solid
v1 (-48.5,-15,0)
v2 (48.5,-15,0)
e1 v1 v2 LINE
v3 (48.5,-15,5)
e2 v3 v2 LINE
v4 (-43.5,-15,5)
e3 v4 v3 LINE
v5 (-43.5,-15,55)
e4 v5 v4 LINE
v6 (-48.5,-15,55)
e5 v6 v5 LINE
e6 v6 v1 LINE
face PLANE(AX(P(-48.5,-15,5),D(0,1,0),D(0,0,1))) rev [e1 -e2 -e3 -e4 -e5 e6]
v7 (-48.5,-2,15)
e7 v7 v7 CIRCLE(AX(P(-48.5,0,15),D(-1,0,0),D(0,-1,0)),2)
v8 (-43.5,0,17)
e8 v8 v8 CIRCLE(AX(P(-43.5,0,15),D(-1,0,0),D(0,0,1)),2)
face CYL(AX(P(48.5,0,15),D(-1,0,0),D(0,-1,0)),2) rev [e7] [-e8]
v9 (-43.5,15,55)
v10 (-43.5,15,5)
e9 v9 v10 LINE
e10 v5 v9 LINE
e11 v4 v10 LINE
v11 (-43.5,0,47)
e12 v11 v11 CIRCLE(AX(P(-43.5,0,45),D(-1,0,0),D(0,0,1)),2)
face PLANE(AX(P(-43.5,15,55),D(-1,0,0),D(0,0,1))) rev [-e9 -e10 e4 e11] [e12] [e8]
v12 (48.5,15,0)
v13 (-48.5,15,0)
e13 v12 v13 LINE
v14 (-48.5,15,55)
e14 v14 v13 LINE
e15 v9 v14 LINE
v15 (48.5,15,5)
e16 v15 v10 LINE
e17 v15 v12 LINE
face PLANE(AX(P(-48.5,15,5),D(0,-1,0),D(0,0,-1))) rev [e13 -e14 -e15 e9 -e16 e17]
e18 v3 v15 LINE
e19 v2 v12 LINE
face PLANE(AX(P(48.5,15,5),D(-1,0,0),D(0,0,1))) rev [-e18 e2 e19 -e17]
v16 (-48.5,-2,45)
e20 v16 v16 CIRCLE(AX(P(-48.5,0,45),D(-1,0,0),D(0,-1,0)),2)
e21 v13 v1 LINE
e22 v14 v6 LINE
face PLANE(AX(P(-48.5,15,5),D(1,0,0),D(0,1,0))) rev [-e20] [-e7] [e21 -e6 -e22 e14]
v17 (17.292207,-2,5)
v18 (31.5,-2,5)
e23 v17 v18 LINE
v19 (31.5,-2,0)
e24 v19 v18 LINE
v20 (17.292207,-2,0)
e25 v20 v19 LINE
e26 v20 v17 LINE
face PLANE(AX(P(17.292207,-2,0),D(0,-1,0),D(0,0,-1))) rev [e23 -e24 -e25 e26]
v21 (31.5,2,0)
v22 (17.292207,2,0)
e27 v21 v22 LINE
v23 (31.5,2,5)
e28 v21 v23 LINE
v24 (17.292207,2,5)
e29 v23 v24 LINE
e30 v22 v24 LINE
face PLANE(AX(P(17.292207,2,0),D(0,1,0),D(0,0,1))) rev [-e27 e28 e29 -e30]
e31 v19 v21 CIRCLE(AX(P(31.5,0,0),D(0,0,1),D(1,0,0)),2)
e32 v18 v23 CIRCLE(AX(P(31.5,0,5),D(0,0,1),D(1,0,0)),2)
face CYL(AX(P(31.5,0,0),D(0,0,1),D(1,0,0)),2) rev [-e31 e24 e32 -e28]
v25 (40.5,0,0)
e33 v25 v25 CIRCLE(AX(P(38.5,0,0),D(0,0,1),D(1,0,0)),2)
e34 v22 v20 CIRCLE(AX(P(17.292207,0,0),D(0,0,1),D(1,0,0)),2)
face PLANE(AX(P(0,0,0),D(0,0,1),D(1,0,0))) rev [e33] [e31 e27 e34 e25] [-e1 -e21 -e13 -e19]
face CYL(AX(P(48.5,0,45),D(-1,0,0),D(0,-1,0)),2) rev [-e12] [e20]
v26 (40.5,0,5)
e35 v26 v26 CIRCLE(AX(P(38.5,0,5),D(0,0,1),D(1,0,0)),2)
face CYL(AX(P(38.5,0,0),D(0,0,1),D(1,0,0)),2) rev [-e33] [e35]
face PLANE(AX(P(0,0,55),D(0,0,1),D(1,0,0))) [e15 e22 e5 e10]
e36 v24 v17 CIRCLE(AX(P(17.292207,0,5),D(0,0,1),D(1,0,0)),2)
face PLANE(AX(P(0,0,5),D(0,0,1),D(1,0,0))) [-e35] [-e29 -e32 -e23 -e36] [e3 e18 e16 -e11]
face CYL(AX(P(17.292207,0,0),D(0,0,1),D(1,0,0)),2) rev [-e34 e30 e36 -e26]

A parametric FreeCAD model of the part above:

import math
import FreeCAD as App
import Part
import Sketcher

doc = App.newDocument("Part")
body = doc.addObject("PartDesign::Body", "Body")

sketch1 = doc.addObject("Sketcher::SketchObject", "Sketch")
body.addObject(sketch1)
sketch1.AttachmentSupport = (doc.XY_Plane, [""])
sketch1.MapMode = "FlatFace"
sketch1.addGeometry([
    Part.LineSegment(App.Vector(-48, 15, 0), App.Vector(-48, -15, 0)),
    Part.LineSegment(App.Vector(-48, -15, 0), App.Vector(48, -15, 0)),
    Part.LineSegment(App.Vector(48, -15, 0), App.Vector(48, 15, 0)),
    Part.LineSegment(App.Vector(48, 15, 0), App.Vector(-48, 15, 0)),
], False)
sketch1.addConstraint([
    Sketcher.Constraint("Coincident", 0, 2, 1, 1),
    Sketcher.Constraint("Coincident", 1, 2, 2, 1),
    Sketcher.Constraint("Coincident", 2, 2, 3, 1),
    Sketcher.Constraint("Coincident", 3, 2, 0, 1),
    Sketcher.Constraint("Vertical", 0),
    Sketcher.Constraint("Horizontal", 1),
    Sketcher.Constraint("Vertical", 2),
    Sketcher.Constraint("Horizontal", 3),
    Sketcher.Constraint("Symmetric", 0, 2, 2, 2, -1, 1),
    Sketcher.Constraint("DistanceX", 1, 1, 1, 2, 97.0),
    Sketcher.Constraint("DistanceY", 0, 2, 0, 1, 30.0),
])
pad1 = doc.addObject("PartDesign::Pad", "Pad")
body.addObject(pad1)
pad1.Profile = sketch1
pad1.Length = 5

sketch2 = doc.addObject("Sketcher::SketchObject", "Sketch001")
body.addObject(sketch2)
sketch2.AttachmentSupport = (doc.XY_Plane, [""])
sketch2.MapMode = "FlatFace"
sketch2.AttachmentOffset = App.Placement(App.Vector(0, 0, 5), App.Rotation())
sketch2.addGeometry([
    Part.Circle(App.Vector(38.5, 0, 0), App.Vector(0, 0, 1), 2),
    Part.LineSegment(App.Vector(31.5, 2, 0), App.Vector(17.3, 2, 0)),
    Part.ArcOfCircle(Part.Circle(App.Vector(17.3, 0, 0), App.Vector(0, 0, 1), 2), math.radians(90), math.radians(270)),
    Part.LineSegment(App.Vector(17.3, -2, 0), App.Vector(31.5, -2, 0)),
    Part.ArcOfCircle(Part.Circle(App.Vector(31.5, 0, 0), App.Vector(0, 0, 1), 2), math.radians(-90), math.radians(90)),
], False)
sketch2.addConstraint([
    Sketcher.Constraint("Tangent", 1, 2, 2, 1),
    Sketcher.Constraint("Tangent", 2, 2, 3, 1),
    Sketcher.Constraint("Tangent", 3, 2, 4, 1),
    Sketcher.Constraint("Tangent", 4, 2, 1, 1),
    Sketcher.Constraint("Horizontal", 1),
    Sketcher.Constraint("Horizontal", 3),
    Sketcher.Constraint("Equal", 0, 2),
    Sketcher.Constraint("PointOnObject", 0, 3, -1),
    Sketcher.Constraint("PointOnObject", 2, 3, -1),
    Sketcher.Constraint("Diameter", 0, 4.0),
    Sketcher.Constraint("DistanceX", 4, 3, 0, 3, 7.0),
    Sketcher.Constraint("DistanceX", -1, 1, 0, 3, 38.5),
    Sketcher.Constraint("DistanceX", 1, 2, 1, 1, 14.207793),
])
pocket1 = doc.addObject("PartDesign::Pocket", "Pocket")
body.addObject(pocket1)
pocket1.Profile = sketch2
pocket1.Type = "ThroughAll"

sketch3 = doc.addObject("Sketcher::SketchObject", "Sketch002")
body.addObject(sketch3)
sketch3.AttachmentSupport = (doc.XY_Plane, [""])
sketch3.MapMode = "FlatFace"
sketch3.AttachmentOffset = App.Placement(App.Vector(0, 0, 5), App.Rotation())
sketch3.addGeometry([
    Part.LineSegment(App.Vector(-48, 15, 0), App.Vector(-48, -15, 0)),
    Part.LineSegment(App.Vector(-48, -15, 0), App.Vector(-44, -15, 0)),
    Part.LineSegment(App.Vector(-44, -15, 0), App.Vector(-44, 15, 0)),
    Part.LineSegment(App.Vector(-44, 15, 0), App.Vector(-48, 15, 0)),
], False)
sketch3.addConstraint([
    Sketcher.Constraint("Coincident", 0, 2, 1, 1),
    Sketcher.Constraint("Coincident", 1, 2, 2, 1),
    Sketcher.Constraint("Coincident", 2, 2, 3, 1),
    Sketcher.Constraint("Coincident", 3, 2, 0, 1),
    Sketcher.Constraint("Vertical", 0),
    Sketcher.Constraint("Horizontal", 1),
    Sketcher.Constraint("Vertical", 2),
    Sketcher.Constraint("Horizontal", 3),
    Sketcher.Constraint("DistanceX", 1, 1, 1, 2, 5.0),
    Sketcher.Constraint("DistanceY", 0, 2, 0, 1, 30.0),
    Sketcher.Constraint("DistanceY", 0, 2, -1, 1, 15.0),
    Sketcher.Constraint("DistanceX", 0, 2, -1, 1, 48.5),
])
pad2 = doc.addObject("PartDesign::Pad", "Pad001")
body.addObject(pad2)
pad2.Profile = sketch3
pad2.Length = 50

sketch4 = doc.addObject("Sketcher::SketchObject", "Sketch003")
body.addObject(sketch4)
sketch4.AttachmentSupport = (doc.YZ_Plane, [""])
sketch4.MapMode = "FlatFace"
sketch4.AttachmentOffset = App.Placement(App.Vector(0, 0, -48.5), App.Rotation())
sketch4.addGeometry([
    Part.Circle(App.Vector(0, 15, 0), App.Vector(0, 0, 1), 2),
    Part.Circle(App.Vector(0, 45, 0), App.Vector(0, 0, 1), 2),
], False)
sketch4.addConstraint([
    Sketcher.Constraint("Equal", 0, 1),
    Sketcher.Constraint("PointOnObject", 0, 3, -2),
    Sketcher.Constraint("PointOnObject", 1, 3, -2),
    Sketcher.Constraint("Diameter", 0, 4.0),
    Sketcher.Constraint("DistanceY", -1, 1, 0, 3, 15.0),
    Sketcher.Constraint("DistanceY", -1, 1, 1, 3, 45.0),
])
pocket2 = doc.addObject("PartDesign::Pocket", "Pocket001")
body.addObject(pocket2)
pocket2.Profile = sketch4
pocket2.Type = "ThroughAll"
pocket2.Reversed = True

doc.recompute()
